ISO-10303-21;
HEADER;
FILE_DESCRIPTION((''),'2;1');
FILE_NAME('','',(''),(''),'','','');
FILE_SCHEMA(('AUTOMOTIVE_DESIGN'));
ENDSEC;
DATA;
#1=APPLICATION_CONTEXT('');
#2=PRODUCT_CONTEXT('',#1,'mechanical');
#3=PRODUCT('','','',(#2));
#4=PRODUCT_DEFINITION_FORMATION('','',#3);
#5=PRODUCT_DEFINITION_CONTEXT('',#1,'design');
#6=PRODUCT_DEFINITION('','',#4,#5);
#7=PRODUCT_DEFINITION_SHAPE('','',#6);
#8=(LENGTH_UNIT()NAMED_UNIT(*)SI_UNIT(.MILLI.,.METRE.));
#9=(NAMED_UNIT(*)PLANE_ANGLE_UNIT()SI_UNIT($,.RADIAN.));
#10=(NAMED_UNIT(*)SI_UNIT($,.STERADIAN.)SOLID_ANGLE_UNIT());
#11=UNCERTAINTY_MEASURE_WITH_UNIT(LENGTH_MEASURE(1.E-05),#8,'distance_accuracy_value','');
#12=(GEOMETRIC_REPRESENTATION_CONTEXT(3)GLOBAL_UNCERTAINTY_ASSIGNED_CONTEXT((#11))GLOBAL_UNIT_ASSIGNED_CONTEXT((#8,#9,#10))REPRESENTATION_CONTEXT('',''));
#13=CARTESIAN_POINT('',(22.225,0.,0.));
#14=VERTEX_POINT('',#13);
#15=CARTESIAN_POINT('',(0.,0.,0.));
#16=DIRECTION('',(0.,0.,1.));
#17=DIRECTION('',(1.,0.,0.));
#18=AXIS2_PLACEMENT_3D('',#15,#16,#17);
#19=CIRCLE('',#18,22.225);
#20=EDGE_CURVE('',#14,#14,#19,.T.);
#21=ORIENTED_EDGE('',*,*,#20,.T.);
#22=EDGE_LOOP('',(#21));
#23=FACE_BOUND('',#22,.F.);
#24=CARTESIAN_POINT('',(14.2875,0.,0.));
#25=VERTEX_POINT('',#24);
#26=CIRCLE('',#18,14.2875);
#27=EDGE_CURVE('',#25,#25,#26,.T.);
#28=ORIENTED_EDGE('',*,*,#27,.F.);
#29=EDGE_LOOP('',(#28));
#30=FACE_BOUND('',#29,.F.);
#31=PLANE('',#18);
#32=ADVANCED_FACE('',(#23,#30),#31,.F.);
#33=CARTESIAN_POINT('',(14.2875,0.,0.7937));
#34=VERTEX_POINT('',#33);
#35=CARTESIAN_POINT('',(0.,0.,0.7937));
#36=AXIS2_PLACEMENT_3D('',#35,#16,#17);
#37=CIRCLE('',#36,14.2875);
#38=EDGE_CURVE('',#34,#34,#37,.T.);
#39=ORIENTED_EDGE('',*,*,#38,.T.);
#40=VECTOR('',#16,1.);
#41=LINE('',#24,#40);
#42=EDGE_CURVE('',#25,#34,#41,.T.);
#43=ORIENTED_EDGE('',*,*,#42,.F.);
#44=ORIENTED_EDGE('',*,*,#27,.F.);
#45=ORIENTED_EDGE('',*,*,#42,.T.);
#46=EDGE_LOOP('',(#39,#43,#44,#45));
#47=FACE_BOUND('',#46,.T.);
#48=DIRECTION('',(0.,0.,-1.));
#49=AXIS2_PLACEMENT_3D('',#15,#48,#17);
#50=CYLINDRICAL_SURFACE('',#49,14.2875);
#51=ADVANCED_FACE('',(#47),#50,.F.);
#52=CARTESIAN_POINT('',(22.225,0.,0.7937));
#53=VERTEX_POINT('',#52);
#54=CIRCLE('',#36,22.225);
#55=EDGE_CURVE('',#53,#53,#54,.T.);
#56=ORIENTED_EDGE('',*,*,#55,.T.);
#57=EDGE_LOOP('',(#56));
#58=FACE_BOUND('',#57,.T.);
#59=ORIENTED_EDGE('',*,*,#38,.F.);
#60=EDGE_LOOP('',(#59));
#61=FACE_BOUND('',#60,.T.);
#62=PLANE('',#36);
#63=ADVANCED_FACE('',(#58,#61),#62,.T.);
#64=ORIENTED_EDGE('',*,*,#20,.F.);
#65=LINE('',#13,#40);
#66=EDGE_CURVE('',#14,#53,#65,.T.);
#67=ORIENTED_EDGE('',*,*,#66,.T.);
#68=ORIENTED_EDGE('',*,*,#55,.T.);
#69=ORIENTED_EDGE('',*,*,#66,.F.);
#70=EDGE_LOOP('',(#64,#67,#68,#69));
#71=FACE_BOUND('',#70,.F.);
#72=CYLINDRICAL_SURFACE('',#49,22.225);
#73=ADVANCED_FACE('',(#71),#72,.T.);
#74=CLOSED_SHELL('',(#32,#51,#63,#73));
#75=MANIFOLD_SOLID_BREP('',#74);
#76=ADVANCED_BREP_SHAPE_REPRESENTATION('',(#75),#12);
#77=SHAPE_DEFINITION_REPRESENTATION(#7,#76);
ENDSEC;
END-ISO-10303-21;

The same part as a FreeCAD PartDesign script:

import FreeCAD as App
import Part
import Sketcher
from FreeCAD import Vector
Q = App.Units.Quantity

doc = App.newDocument("Part")
body = doc.addObject("PartDesign::Body", "Body")

# Sketch on XY plane
sketch1 = body.newObject("Sketcher::SketchObject", "Sketch")
sketch1.AttachmentSupport = (doc.getObject("XY_Plane"), [""])
sketch1.MapMode = "FlatFace"
sketch1.addGeometry([
    Part.Circle(Vector(0, 0, 0), Vector(0, 0, 1), 22),
    Part.Circle(Vector(0, 0, 0), Vector(0, 0, 1), 14),
], False)
sketch1.addConstraint([
    Sketcher.Constraint("Coincident", 0, 3, -1, 1),
    Sketcher.Constraint("Coincident", 1, 3, -1, 1),
    Sketcher.Constraint("Diameter", 0, Q("1.75 in")),
    Sketcher.Constraint("Diameter", 1, Q("1.125 in")),
])
pad1 = body.newObject("PartDesign::Pad", "Pad")
pad1.Profile = sketch1
pad1.Length = Q("0.031248 in")

doc.recompute()
